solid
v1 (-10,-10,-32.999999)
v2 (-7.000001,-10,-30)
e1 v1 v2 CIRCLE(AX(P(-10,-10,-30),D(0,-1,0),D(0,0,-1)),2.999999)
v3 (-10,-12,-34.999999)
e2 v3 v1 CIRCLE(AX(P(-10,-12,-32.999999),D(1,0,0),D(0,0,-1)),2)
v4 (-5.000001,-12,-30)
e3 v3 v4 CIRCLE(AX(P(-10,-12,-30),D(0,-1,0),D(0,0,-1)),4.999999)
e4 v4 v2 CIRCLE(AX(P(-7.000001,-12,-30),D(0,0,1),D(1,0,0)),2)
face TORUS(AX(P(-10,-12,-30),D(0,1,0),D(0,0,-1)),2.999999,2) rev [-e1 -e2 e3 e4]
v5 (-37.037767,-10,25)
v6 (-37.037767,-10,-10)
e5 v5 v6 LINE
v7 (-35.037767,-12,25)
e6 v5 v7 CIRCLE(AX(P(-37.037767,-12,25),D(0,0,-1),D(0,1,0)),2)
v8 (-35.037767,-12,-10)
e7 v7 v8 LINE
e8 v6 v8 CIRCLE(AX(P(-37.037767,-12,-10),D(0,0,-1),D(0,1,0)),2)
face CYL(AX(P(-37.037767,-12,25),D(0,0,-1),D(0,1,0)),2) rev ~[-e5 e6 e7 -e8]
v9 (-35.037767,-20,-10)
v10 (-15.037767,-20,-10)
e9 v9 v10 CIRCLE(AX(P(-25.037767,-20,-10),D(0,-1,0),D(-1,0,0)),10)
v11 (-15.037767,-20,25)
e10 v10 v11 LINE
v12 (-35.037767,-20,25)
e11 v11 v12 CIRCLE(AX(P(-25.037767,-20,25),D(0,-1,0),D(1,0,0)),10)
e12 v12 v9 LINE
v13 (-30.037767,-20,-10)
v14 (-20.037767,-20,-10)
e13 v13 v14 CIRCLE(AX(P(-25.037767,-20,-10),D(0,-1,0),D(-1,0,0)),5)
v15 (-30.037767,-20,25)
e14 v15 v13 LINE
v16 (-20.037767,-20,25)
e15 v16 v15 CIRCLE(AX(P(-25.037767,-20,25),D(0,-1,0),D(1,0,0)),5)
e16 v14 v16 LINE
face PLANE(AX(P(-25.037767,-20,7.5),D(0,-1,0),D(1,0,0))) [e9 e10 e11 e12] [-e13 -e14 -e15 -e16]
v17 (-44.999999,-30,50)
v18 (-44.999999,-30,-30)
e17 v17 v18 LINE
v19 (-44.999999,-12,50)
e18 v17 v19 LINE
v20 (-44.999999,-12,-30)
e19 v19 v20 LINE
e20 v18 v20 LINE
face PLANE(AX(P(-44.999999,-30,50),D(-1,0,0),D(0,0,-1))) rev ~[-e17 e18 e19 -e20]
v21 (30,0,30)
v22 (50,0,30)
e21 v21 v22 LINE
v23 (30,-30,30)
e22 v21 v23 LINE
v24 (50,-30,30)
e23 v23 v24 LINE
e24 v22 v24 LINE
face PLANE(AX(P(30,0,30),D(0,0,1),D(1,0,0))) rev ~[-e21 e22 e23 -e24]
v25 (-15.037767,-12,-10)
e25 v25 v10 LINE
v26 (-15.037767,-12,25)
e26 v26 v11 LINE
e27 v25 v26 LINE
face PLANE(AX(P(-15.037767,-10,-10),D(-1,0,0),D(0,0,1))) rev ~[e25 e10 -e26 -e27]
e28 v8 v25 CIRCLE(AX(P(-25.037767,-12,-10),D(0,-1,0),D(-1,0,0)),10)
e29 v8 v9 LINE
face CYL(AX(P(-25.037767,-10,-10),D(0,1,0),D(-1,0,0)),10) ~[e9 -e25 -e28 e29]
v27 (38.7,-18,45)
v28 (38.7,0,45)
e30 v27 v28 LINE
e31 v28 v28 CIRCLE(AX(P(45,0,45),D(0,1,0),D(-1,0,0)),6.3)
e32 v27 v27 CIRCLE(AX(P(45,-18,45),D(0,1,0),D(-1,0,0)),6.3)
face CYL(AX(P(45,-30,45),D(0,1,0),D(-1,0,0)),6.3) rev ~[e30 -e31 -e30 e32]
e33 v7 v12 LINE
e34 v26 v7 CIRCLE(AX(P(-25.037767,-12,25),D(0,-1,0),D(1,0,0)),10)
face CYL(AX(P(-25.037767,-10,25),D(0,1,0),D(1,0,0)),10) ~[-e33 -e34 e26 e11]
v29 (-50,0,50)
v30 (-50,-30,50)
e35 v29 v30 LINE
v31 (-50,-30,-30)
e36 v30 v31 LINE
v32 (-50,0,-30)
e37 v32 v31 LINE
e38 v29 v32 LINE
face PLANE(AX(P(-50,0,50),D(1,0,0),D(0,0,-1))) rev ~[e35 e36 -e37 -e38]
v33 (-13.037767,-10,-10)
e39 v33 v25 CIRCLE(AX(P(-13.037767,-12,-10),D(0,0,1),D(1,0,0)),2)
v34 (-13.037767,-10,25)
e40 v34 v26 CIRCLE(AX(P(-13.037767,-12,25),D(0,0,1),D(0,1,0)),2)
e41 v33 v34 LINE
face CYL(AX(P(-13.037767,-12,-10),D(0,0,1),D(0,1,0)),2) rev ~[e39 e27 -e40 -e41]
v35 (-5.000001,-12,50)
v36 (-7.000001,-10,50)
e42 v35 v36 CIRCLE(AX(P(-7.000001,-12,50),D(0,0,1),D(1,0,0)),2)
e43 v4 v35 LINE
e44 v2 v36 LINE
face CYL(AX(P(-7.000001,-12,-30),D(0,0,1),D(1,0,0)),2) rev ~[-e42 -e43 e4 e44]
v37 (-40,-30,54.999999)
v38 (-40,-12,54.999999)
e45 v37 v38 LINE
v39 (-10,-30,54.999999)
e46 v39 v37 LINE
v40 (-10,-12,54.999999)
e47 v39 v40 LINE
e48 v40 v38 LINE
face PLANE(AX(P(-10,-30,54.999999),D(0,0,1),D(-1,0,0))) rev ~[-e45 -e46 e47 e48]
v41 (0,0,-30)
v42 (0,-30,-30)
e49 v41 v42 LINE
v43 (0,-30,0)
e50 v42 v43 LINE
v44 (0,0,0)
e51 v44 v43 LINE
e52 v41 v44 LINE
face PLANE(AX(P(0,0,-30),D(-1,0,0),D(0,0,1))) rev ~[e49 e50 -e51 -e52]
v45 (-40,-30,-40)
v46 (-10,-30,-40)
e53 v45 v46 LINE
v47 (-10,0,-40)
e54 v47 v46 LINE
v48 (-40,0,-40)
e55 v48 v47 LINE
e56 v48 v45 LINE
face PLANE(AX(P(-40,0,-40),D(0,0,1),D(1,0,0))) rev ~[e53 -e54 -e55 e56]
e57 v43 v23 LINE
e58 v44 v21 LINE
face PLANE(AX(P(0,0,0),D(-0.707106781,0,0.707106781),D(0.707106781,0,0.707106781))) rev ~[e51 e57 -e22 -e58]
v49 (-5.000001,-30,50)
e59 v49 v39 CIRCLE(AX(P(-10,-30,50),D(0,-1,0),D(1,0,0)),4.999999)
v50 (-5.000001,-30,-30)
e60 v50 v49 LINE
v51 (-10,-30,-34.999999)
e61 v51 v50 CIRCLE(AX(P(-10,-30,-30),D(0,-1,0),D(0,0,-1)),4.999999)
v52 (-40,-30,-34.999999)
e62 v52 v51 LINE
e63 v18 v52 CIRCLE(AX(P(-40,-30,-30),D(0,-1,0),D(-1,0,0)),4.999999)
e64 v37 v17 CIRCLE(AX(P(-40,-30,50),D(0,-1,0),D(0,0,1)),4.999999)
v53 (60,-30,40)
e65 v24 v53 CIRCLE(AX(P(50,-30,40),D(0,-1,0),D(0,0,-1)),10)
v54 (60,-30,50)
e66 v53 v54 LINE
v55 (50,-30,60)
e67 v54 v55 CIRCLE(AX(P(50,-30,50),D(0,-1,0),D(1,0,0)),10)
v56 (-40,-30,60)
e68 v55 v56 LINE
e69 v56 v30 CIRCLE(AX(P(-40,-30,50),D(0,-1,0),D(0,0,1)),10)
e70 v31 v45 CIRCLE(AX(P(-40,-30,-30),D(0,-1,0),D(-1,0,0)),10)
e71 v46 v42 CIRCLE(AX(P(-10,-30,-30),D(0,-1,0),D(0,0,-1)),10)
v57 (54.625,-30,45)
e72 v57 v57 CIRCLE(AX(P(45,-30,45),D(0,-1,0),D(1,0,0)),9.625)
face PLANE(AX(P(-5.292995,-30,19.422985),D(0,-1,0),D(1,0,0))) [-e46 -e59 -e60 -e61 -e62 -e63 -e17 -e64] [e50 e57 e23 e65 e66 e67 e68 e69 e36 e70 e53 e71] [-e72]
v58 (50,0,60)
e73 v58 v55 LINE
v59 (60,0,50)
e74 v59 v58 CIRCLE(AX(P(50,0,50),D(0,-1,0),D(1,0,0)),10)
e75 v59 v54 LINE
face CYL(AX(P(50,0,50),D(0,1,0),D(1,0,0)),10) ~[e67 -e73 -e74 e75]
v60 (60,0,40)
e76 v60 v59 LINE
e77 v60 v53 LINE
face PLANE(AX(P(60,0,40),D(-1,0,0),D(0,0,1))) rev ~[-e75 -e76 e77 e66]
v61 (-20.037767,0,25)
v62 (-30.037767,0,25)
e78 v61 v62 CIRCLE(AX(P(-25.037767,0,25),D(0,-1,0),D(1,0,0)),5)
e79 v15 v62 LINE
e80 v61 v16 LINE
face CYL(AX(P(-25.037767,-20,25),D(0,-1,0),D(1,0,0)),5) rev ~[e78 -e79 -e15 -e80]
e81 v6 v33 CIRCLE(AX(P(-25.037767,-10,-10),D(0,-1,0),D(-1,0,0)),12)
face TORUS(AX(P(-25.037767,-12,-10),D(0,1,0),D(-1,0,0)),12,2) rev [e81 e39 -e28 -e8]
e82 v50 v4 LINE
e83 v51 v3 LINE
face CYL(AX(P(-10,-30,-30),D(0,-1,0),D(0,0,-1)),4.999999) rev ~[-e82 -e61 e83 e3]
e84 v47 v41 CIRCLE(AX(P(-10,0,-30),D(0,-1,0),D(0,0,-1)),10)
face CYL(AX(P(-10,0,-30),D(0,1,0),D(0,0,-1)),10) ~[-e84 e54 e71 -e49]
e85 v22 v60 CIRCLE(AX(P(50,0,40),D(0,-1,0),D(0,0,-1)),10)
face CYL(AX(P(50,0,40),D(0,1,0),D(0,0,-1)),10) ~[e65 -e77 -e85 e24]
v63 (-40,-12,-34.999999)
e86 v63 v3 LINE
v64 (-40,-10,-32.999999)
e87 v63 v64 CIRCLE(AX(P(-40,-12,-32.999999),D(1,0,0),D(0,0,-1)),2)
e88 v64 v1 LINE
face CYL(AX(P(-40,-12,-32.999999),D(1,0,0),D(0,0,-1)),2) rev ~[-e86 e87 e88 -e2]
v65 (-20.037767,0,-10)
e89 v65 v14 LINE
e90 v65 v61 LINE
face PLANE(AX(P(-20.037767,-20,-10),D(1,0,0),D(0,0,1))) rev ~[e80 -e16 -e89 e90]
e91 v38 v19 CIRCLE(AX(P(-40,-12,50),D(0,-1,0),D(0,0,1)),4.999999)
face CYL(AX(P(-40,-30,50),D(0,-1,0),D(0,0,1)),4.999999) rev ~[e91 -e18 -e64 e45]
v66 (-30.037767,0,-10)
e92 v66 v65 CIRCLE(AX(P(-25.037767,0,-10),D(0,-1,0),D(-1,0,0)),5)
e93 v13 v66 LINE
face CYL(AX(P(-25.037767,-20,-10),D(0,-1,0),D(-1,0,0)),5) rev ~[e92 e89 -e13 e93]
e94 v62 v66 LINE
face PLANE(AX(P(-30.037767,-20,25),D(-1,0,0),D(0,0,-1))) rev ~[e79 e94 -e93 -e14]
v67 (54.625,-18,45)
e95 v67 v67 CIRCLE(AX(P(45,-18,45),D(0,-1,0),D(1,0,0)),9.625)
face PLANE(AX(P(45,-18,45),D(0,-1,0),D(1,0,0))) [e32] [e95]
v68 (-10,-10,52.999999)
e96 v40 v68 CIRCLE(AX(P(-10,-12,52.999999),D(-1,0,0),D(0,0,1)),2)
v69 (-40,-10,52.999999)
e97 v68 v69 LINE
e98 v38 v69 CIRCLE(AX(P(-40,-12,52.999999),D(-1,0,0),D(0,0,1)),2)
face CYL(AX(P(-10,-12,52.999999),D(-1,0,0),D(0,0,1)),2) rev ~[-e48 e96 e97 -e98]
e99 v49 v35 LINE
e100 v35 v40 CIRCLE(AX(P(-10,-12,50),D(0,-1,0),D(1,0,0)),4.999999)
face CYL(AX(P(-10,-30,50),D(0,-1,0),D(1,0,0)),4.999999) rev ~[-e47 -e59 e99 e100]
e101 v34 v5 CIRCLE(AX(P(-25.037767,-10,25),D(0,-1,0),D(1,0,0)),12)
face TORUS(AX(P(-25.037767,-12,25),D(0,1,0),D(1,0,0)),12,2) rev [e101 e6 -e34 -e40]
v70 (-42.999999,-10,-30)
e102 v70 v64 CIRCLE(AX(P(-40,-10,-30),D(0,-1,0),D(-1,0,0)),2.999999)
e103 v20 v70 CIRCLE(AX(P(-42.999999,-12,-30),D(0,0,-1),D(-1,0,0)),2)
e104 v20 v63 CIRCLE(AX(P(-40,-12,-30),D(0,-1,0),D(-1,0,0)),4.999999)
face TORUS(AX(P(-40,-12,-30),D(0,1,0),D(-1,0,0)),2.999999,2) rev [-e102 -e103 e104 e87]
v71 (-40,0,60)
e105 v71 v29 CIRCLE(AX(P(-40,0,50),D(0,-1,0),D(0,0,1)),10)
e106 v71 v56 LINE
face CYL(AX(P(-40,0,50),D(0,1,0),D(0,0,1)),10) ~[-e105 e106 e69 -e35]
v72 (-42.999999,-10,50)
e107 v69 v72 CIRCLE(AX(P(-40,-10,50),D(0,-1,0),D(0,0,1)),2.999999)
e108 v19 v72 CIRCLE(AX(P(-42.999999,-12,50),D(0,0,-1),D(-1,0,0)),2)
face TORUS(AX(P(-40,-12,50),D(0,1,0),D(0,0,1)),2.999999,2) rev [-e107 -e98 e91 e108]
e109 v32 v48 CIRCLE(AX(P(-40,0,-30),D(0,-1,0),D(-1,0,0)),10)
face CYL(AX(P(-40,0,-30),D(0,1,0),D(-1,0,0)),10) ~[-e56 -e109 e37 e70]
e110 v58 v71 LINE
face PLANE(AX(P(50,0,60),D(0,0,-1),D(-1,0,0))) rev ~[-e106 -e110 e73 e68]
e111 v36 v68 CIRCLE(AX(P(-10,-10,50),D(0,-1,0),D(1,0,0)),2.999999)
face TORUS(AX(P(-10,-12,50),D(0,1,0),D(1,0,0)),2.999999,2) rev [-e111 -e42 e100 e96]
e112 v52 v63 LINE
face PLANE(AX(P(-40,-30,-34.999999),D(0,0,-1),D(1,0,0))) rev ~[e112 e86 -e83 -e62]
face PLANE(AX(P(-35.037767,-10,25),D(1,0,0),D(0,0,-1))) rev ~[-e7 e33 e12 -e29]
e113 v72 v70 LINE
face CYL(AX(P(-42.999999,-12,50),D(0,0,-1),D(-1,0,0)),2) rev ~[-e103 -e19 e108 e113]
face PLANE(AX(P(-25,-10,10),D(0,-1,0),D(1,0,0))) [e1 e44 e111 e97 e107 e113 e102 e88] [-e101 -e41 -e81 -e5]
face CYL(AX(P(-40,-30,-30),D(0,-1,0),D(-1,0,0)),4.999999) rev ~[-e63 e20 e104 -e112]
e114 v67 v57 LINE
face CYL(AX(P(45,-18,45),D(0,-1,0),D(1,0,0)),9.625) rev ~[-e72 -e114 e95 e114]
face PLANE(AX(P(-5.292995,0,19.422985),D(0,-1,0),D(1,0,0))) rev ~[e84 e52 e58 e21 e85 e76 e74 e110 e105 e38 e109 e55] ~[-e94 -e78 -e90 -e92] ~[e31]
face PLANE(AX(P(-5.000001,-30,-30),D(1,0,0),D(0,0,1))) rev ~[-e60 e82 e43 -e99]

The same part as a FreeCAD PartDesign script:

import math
import FreeCAD as App
import Part
import Sketcher
Q = App.Units.Quantity


def edges_at(feature, points):
    """Names of the edges that pass closest to the given points."""
    edges = feature.Shape.Edges
    near = lambda p: min(range(len(edges)), key=lambda i: edges[i].distToShape(Part.Vertex(*p))[0])
    return sorted({f"Edge{near(p) + 1}" for p in points})

doc = App.newDocument("Part")
body = doc.addObject("PartDesign::Body", "Body")

# Sketch on XZ plane
sketch1 = doc.addObject("Sketcher::SketchObject", "Sketch")
body.addObject(sketch1)
sketch1.AttachmentSupport = (doc.XZ_Plane, [""])
sketch1.MapMode = "FlatFace"
sketch1.addGeometry([
    Part.LineSegment(App.Vector(0, -30, 0), App.Vector(0, 0, 0)),  # 0
    Part.LineSegment(App.Vector(0, 0, 0), App.Vector(30, 30, 0)),  # 1
    Part.LineSegment(App.Vector(30, 30, 0), App.Vector(50, 30, 0)),  # 2
    Part.ArcOfCircle(Part.Circle(App.Vector(50, 40, 0), App.Vector(0, 0, 1), 10), math.radians(-90), math.radians(0)),  # 3
    Part.LineSegment(App.Vector(60, 40, 0), App.Vector(60, 50, 0)),  # 4
    Part.ArcOfCircle(Part.Circle(App.Vector(50, 50, 0), App.Vector(0, 0, 1), 10), math.radians(0), math.radians(90)),  # 5
    Part.LineSegment(App.Vector(50, 60, 0), App.Vector(-40, 60, 0)),  # 6
    Part.ArcOfCircle(Part.Circle(App.Vector(-40, 50, 0), App.Vector(0, 0, 1), 10), math.radians(90), math.radians(180)),  # 7
    Part.LineSegment(App.Vector(-50, 50, 0), App.Vector(-50, -30, 0)),  # 8
    Part.ArcOfCircle(Part.Circle(App.Vector(-40, -30, 0), App.Vector(0, 0, 1), 10), math.radians(180), math.radians(270)),  # 9
    Part.LineSegment(App.Vector(-40, -40, 0), App.Vector(-10, -40, 0)),  # 10
    Part.ArcOfCircle(Part.Circle(App.Vector(-10, -30, 0), App.Vector(0, 0, 1), 10), math.radians(-90), math.radians(0)),  # 11
], False)
sketch1.addConstraint([
    Sketcher.Constraint("Coincident", 0, 2, 1, 1),
    Sketcher.Constraint("Coincident", 1, 2, 2, 1),
    Sketcher.Constraint("Tangent", 2, 2, 3, 1),
    Sketcher.Constraint("Tangent", 3, 2, 4, 1),
    Sketcher.Constraint("Tangent", 4, 2, 5, 1),
    Sketcher.Constraint("Tangent", 5, 2, 6, 1),
    Sketcher.Constraint("Tangent", 6, 2, 7, 1),
    Sketcher.Constraint("Tangent", 7, 2, 8, 1),
    Sketcher.Constraint("Tangent", 8, 2, 9, 1),
    Sketcher.Constraint("Tangent", 9, 2, 10, 1),
    Sketcher.Constraint("Tangent", 10, 2, 11, 1),
    Sketcher.Constraint("Tangent", 11, 2, 0, 1),
    Sketcher.Constraint("Vertical", 0),
    Sketcher.Constraint("Horizontal", 2),
    Sketcher.Constraint("Vertical", 4),
    Sketcher.Constraint("Horizontal", 6),
    Sketcher.Constraint("Vertical", 8),
    Sketcher.Constraint("Horizontal", 10),
    Sketcher.Constraint("Coincident", 0, 2, -1, 1),
    Sketcher.Constraint("Equal", 3, 5),
    Sketcher.Constraint("Equal", 5, 7),
    Sketcher.Constraint("Equal", 7, 9),
    Sketcher.Constraint("Equal", 9, 11),
    Sketcher.Constraint("Symmetric", 2, 2, 8, 2, -1, 1),
    Sketcher.Constraint("Equal", 10, 0),
    Sketcher.Constraint("Radius", 3, Q("10 mm")),
    Sketcher.Constraint("DistanceX", 2, 1, 2, 2, Q("20 mm")),
    Sketcher.Constraint("DistanceX", 6, 2, 6, 1, Q("90 mm")),
    Sketcher.Constraint("DistanceY", 4, 1, 4, 2, Q("10 mm")),
])
pad1 = doc.addObject("PartDesign::Pad", "Pad")
body.addObject(pad1)
pad1.Profile = sketch1
pad1.Length = 30

# Sketch on XZ plane
sketch2 = doc.addObject("Sketcher::SketchObject", "Sketch001")
body.addObject(sketch2)
sketch2.AttachmentSupport = (doc.XZ_Plane, [""])
sketch2.MapMode = "FlatFace"
sketch2.AttachmentOffset = App.Placement(App.Vector(0, 0, 30), App.Rotation())
sketch2.addGeometry(Part.Circle(App.Vector(45, 45, 0), App.Vector(0, 0, 1), 6.3), False)
sketch2.addConstraint([
    Sketcher.Constraint("Diameter", 0, Q("12.6 mm")),
    Sketcher.Constraint("DistanceX", -1, 1, 0, 3, Q("45 mm")),
    Sketcher.Constraint("DistanceY", -1, 1, 0, 3, Q("45 mm")),
])
doc.recompute()
hole = doc.addObject("PartDesign::Hole", "Hole")
body.addObject(hole)
hole.Profile = sketch2
hole.ThreadType = "None"
hole.Diameter = 12.6
hole.DepthType = "ThroughAll"
hole.HoleCutType = "Counterbore"
hole.HoleCutDiameter = 19.25
hole.HoleCutDepth = 12

# Sketch on XZ plane
sketch3 = doc.addObject("Sketcher::SketchObject", "Sketch002")
body.addObject(sketch3)
sketch3.AttachmentSupport = (doc.XZ_Plane, [""])
sketch3.MapMode = "FlatFace"
sketch3.AttachmentOffset = App.Placement(App.Vector(0, 0, 30), App.Rotation())
sketch3.addGeometry([
    Part.LineSegment(App.Vector(-5.000001, -30, 0), App.Vector(-5.000001, 50, 0)),  # 0
    Part.ArcOfCircle(Part.Circle(App.Vector(-10, 50, 0), App.Vector(0, 0, 1), 4.999999), math.radians(0), math.radians(90)),  # 1
    Part.LineSegment(App.Vector(-10, 54.999999, 0), App.Vector(-40, 54.999999, 0)),  # 2
    Part.ArcOfCircle(Part.Circle(App.Vector(-40, 50, 0), App.Vector(0, 0, 1), 4.999999), math.radians(90), math.radians(180)),  # 3
    Part.LineSegment(App.Vector(-44.999999, 50, 0), App.Vector(-44.999999, -30, 0)),  # 4
    Part.ArcOfCircle(Part.Circle(App.Vector(-40, -30, 0), App.Vector(0, 0, 1), 4.999999), math.radians(180), math.radians(270)),  # 5
    Part.LineSegment(App.Vector(-40, -34.999999, 0), App.Vector(-10, -34.999999, 0)),  # 6
    Part.ArcOfCircle(Part.Circle(App.Vector(-10, -30, 0), App.Vector(0, 0, 1), 4.999999), math.radians(-90), math.radians(0)),  # 7
], False)
sketch3.addConstraint([
    Sketcher.Constraint("Tangent", 0, 2, 1, 1),
    Sketcher.Constraint("Tangent", 1, 2, 2, 1),
    Sketcher.Constraint("Tangent", 2, 2, 3, 1),
    Sketcher.Constraint("Tangent", 3, 2, 4, 1),
    Sketcher.Constraint("Tangent", 4, 2, 5, 1),
    Sketcher.Constraint("Tangent", 5, 2, 6, 1),
    Sketcher.Constraint("Tangent", 6, 2, 7, 1),
    Sketcher.Constraint("Tangent", 7, 2, 0, 1),
    Sketcher.Constraint("Vertical", 0),
    Sketcher.Constraint("Horizontal", 2),
    Sketcher.Constraint("Vertical", 4),
    Sketcher.Constraint("Horizontal", 6),
    Sketcher.Constraint("Equal", 1, 3),
    Sketcher.Constraint("Equal", 3, 5),
    Sketcher.Constraint("Equal", 5, 7),
    Sketcher.Constraint("Radius", 1, Q("4.999999 mm")),
    Sketcher.Constraint("DistanceX", 2, 2, 2, 1, Q("30 mm")),
    Sketcher.Constraint("DistanceY", 0, 1, 0, 2, Q("80 mm")),
    Sketcher.Constraint("DistanceX", 1, 3, -1, 1, Q("10 mm")),
    Sketcher.Constraint("DistanceY", -1, 1, 1, 3, Q("50 mm")),
])
pocket1 = doc.addObject("PartDesign::Pocket", "Pocket")
body.addObject(pocket1)
pocket1.Profile = sketch3
pocket1.Length = 20

# Sketch on XZ plane
sketch4 = doc.addObject("Sketcher::SketchObject", "Sketch003")
body.addObject(sketch4)
sketch4.AttachmentSupport = (doc.XZ_Plane, [""])
sketch4.MapMode = "FlatFace"
sketch4.AttachmentOffset = App.Placement(App.Vector(0, 0, 10), App.Rotation())
sketch4.addGeometry([
    Part.ArcOfCircle(Part.Circle(App.Vector(-25.037767, -10, 0), App.Vector(0, 0, 1), 10), math.radians(180), math.radians(360)),
    Part.LineSegment(App.Vector(-15.037767, -10, 0), App.Vector(-15.037767, 25, 0)),
    Part.ArcOfCircle(Part.Circle(App.Vector(-25.037767, 25, 0), App.Vector(0, 0, 1), 10), math.radians(0), math.radians(180)),
    Part.LineSegment(App.Vector(-35.037767, 25, 0), App.Vector(-35.037767, -10, 0)),
], False)
sketch4.addConstraint([
    Sketcher.Constraint("Tangent", 0, 2, 1, 1),
    Sketcher.Constraint("Tangent", 1, 2, 2, 1),
    Sketcher.Constraint("Tangent", 2, 2, 3, 1),
    Sketcher.Constraint("Tangent", 3, 2, 0, 1),
    Sketcher.Constraint("Vertical", 1),
    Sketcher.Constraint("Vertical", 3),
    Sketcher.Constraint("Radius", 0, Q("10 mm")),
    Sketcher.Constraint("DistanceY", 1, 1, 1, 2, Q("35 mm")),
    Sketcher.Constraint("DistanceY", 0, 3, -1, 1, Q("10 mm")),
    Sketcher.Constraint("DistanceX", 0, 3, -1, 1, Q("25.037767 mm")),
])
pad2 = doc.addObject("PartDesign::Pad", "Pad001")
body.addObject(pad2)
pad2.Profile = sketch4
pad2.Length = 10

# Sketch on XZ plane
sketch5 = doc.addObject("Sketcher::SketchObject", "Sketch004")
body.addObject(sketch5)
sketch5.AttachmentSupport = (doc.XZ_Plane, [""])
sketch5.MapMode = "FlatFace"
sketch5.AttachmentOffset = App.Placement(App.Vector(0, 0, 20), App.Rotation())
sketch5.addGeometry([
    Part.ArcOfCircle(Part.Circle(App.Vector(-25.037767, -10, 0), App.Vector(0, 0, 1), 5), math.radians(180), math.radians(360)),
    Part.LineSegment(App.Vector(-20.037767, -10, 0), App.Vector(-20.037767, 25, 0)),
    Part.ArcOfCircle(Part.Circle(App.Vector(-25.037767, 25, 0), App.Vector(0, 0, 1), 5), math.radians(0), math.radians(180)),
    Part.LineSegment(App.Vector(-30.037767, 25, 0), App.Vector(-30.037767, -10, 0)),
], False)
sketch5.addConstraint([
    Sketcher.Constraint("Tangent", 0, 2, 1, 1),
    Sketcher.Constraint("Tangent", 1, 2, 2, 1),
    Sketcher.Constraint("Tangent", 2, 2, 3, 1),
    Sketcher.Constraint("Tangent", 3, 2, 0, 1),
    Sketcher.Constraint("Vertical", 1),
    Sketcher.Constraint("Vertical", 3),
    Sketcher.Constraint("Radius", 0, Q("5 mm")),
    Sketcher.Constraint("DistanceY", 1, 1, 1, 2, Q("35 mm")),
    Sketcher.Constraint("DistanceY", 0, 3, -1, 1, Q("10 mm")),
    Sketcher.Constraint("DistanceX", 0, 3, -1, 1, Q("25.037767 mm")),
])
pocket2 = doc.addObject("PartDesign::Pocket", "Pocket001")
body.addObject(pocket2)
pocket2.Profile = sketch5
pocket2.Length = 103
pocket2.Midplane = True
doc.recompute()

fillet = doc.addObject("PartDesign::Fillet", "Fillet")
body.addObject(fillet)
fillet.Base = (pocket2, edges_at(pocket2, [
    (-5, -10, 10),
    (-6.464, -10, -33.536),
    (-6.464, -10, 53.536),
    (-25, -10, -35),
    (-25, -10, 55),
    (-43.536, -10, -33.536),
    (-43.536, -10, 53.536),
    (-45, -10, 10),
    (-35.038, -10, 7.5),
    (-25.038, -10, -20),
    (-15.038, -10, 7.5),
    (-25.038, -10, 35),
]))
fillet.Radius = 2

doc.recompute()
